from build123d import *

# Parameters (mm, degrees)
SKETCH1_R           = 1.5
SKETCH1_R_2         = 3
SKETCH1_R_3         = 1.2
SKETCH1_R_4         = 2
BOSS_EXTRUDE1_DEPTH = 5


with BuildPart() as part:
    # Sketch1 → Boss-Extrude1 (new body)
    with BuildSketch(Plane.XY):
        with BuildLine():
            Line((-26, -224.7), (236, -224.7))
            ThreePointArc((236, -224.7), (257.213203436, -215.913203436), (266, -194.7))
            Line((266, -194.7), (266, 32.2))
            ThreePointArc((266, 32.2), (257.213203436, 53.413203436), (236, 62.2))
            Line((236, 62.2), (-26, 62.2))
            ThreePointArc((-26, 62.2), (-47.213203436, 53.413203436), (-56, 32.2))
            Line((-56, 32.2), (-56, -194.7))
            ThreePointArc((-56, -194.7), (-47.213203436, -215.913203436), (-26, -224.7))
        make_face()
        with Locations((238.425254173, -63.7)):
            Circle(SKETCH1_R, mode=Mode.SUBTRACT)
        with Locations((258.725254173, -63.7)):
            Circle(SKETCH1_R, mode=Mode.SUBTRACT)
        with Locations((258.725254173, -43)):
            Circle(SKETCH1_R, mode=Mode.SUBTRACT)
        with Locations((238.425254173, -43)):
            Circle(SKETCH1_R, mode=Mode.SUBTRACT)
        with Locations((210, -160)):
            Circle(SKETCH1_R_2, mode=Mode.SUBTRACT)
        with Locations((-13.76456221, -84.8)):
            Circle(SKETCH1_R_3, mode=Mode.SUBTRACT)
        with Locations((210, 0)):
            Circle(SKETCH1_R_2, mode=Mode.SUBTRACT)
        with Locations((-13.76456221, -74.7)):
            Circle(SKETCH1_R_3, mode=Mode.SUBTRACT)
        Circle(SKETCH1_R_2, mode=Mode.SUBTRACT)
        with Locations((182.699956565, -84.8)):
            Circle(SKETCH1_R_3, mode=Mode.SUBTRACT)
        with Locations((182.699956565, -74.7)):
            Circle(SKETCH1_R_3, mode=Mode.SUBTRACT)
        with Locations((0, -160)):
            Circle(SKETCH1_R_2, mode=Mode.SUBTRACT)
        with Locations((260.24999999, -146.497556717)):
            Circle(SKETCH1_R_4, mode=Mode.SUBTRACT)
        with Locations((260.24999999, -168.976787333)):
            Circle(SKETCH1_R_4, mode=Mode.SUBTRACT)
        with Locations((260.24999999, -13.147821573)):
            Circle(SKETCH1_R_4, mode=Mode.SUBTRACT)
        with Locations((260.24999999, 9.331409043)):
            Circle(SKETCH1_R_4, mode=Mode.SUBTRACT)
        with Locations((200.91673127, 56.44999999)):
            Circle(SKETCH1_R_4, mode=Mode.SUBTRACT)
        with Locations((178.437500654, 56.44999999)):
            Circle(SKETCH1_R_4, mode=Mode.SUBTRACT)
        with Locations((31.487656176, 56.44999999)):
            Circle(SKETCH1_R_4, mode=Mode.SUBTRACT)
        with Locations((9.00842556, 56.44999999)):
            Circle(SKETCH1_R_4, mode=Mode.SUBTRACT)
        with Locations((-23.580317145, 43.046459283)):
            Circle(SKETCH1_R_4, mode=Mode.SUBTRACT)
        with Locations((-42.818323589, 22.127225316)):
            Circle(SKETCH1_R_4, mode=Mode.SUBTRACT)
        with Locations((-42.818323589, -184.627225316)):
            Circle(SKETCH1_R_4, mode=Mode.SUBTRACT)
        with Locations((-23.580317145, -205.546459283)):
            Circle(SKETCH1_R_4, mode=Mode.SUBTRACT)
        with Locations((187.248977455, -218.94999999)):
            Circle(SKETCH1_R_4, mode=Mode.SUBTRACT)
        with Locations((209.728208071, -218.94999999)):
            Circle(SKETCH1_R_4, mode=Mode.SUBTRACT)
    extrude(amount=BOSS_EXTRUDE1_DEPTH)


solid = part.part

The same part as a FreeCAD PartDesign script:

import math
import FreeCAD as App
import Part
import Sketcher
Q = App.Units.Quantity

doc = App.newDocument("Part")
body = doc.addObject("PartDesign::Body", "Body")

# Sketch on XY plane
sketch1 = body.newObject("Sketcher::SketchObject", "Sketch")
sketch1.AttachmentSupport = (doc.getObject("XY_Plane"), [""])
sketch1.MapMode = "FlatFace"
sketch1.addGeometry(Part.LineSegment(App.Vector(-26, -224.7, 0), App.Vector(236, -224.7, 0)), False)
sketch1.addGeometry(Part.ArcOfCircle(Part.Circle(App.Vector(236, -194.7, 0), App.Vector(0, 0, 1), 30), math.radians(-90), math.radians(0)), False)
sketch1.addGeometry(Part.LineSegment(App.Vector(266, -194.7, 0), App.Vector(266, 32.2, 0)), False)
sketch1.addGeometry(Part.ArcOfCircle(Part.Circle(App.Vector(236, 32.2, 0), App.Vector(0, 0, 1), 30), math.radians(0), math.radians(90)), False)
sketch1.addGeometry(Part.LineSegment(App.Vector(236, 62.2, 0), App.Vector(-26, 62.2, 0)), False)
sketch1.addGeometry(Part.ArcOfCircle(Part.Circle(App.Vector(-26, 32.2, 0), App.Vector(0, 0, 1), 30), math.radians(90), math.radians(180)), False)
sketch1.addGeometry(Part.LineSegment(App.Vector(-56, 32.2, 0), App.Vector(-56, -194.7, 0)), False)
sketch1.addGeometry(Part.ArcOfCircle(Part.Circle(App.Vector(-26, -194.7, 0), App.Vector(0, 0, 1), 30), math.radians(180), math.radians(270)), False)
sketch1.addGeometry(Part.Circle(App.Vector(-23.580317, -205.546459, 0), App.Vector(0, 0, 1), 2), False)
sketch1.addGeometry(Part.Circle(App.Vector(-42.818324, -184.627225, 0), App.Vector(0, 0, 1), 2), False)
sketch1.addGeometry(Part.Circle(App.Vector(0, -160, 0), App.Vector(0, 0, 1), 3), False)
sketch1.addGeometry(Part.Circle(App.Vector(-13.764562, -84.8, 0), App.Vector(0, 0, 1), 1.2), False)
sketch1.addGeometry(Part.Circle(App.Vector(187.248977, -218.95, 0), App.Vector(0, 0, 1), 2), False)
sketch1.addGeometry(Part.Circle(App.Vector(209.728208, -218.95, 0), App.Vector(0, 0, 1), 2), False)
sketch1.addGeometry(Part.Circle(App.Vector(210, -160, 0), App.Vector(0, 0, 1), 3), False)
sketch1.addGeometry(Part.Circle(App.Vector(260.25, -168.976787, 0), App.Vector(0, 0, 1), 2), False)
sketch1.addGeometry(Part.Circle(App.Vector(182.699957, -84.8, 0), App.Vector(0, 0, 1), 1.2), False)
sketch1.addGeometry(Part.Circle(App.Vector(260.25, -146.497557, 0), App.Vector(0, 0, 1), 2), False)
sketch1.addGeometry(Part.Circle(App.Vector(-13.764562, -74.7, 0), App.Vector(0, 0, 1), 1.2), False)
sketch1.addGeometry(Part.Circle(App.Vector(-42.818324, 22.127225, 0), App.Vector(0, 0, 1), 2), False)
sketch1.addGeometry(Part.Circle(App.Vector(0, 0, 0), App.Vector(0, 0, 1), 3), False)
sketch1.addGeometry(Part.Circle(App.Vector(-23.580317, 43.046459, 0), App.Vector(0, 0, 1), 2), False)
sketch1.addGeometry(Part.Circle(App.Vector(9.008426, 56.45, 0), App.Vector(0, 0, 1), 2), False)
sketch1.addGeometry(Part.Circle(App.Vector(31.487656, 56.45, 0), App.Vector(0, 0, 1), 2), False)
sketch1.addGeometry(Part.Circle(App.Vector(182.699957, -74.7, 0), App.Vector(0, 0, 1), 1.2), False)
sketch1.addGeometry(Part.Circle(App.Vector(238.425254, -63.7, 0), App.Vector(0, 0, 1), 1.5), False)
sketch1.addGeometry(Part.Circle(App.Vector(258.725254, -63.7, 0), App.Vector(0, 0, 1), 1.5), False)
sketch1.addGeometry(Part.Circle(App.Vector(238.425254, -43, 0), App.Vector(0, 0, 1), 1.5), False)
sketch1.addGeometry(Part.Circle(App.Vector(258.725254, -43, 0), App.Vector(0, 0, 1), 1.5), False)
sketch1.addGeometry(Part.Circle(App.Vector(260.25, -13.147822, 0), App.Vector(0, 0, 1), 2), False)
sketch1.addGeometry(Part.Circle(App.Vector(178.437501, 56.45, 0), App.Vector(0, 0, 1), 2), False)
sketch1.addGeometry(Part.Circle(App.Vector(210, 0, 0), App.Vector(0, 0, 1), 3), False)
sketch1.addGeometry(Part.Circle(App.Vector(260.25, 9.331409, 0), App.Vector(0, 0, 1), 2), False)
sketch1.addGeometry(Part.Circle(App.Vector(200.916731, 56.45, 0), App.Vector(0, 0, 1), 2), False)
sketch1.addConstraint(Sketcher.Constraint("Tangent", 0, 2, 1, 1))
sketch1.addConstraint(Sketcher.Constraint("Tangent", 1, 2, 2, 1))
sketch1.addConstraint(Sketcher.Constraint("Tangent", 2, 2, 3, 1))
sketch1.addConstraint(Sketcher.Constraint("Tangent", 3, 2, 4, 1))
sketch1.addConstraint(Sketcher.Constraint("Tangent", 4, 2, 5, 1))
sketch1.addConstraint(Sketcher.Constraint("Tangent", 5, 2, 6, 1))
sketch1.addConstraint(Sketcher.Constraint("Tangent", 6, 2, 7, 1))
sketch1.addConstraint(Sketcher.Constraint("Tangent", 7, 2, 0, 1))
sketch1.addConstraint(Sketcher.Constraint("Horizontal", 0))
sketch1.addConstraint(Sketcher.Constraint("Vertical", 2))
sketch1.addConstraint(Sketcher.Constraint("Horizontal", 4))
sketch1.addConstraint(Sketcher.Constraint("Vertical", 6))
sketch1.addConstraint(Sketcher.Constraint("Coincident", 20, 3, -1, 1))
sketch1.addConstraint(Sketcher.Constraint("Equal", 1, 3))
sketch1.addConstraint(Sketcher.Constraint("Equal", 3, 5))
sketch1.addConstraint(Sketcher.Constraint("Equal", 5, 7))
sketch1.addConstraint(Sketcher.Constraint("Equal", 8, 9))
sketch1.addConstraint(Sketcher.Constraint("Equal", 9, 12))
sketch1.addConstraint(Sketcher.Constraint("Equal", 12, 13))
sketch1.addConstraint(Sketcher.Constraint("Equal", 10, 14))
sketch1.addConstraint(Sketcher.Constraint("Equal", 13, 15))
sketch1.addConstraint(Sketcher.Constraint("Equal", 11, 16))
sketch1.addConstraint(Sketcher.Constraint("Equal", 15, 17))
sketch1.addConstraint(Sketcher.Constraint("Equal", 16, 18))
sketch1.addConstraint(Sketcher.Constraint("Equal", 17, 19))
sketch1.addConstraint(Sketcher.Constraint("Equal", 14, 20))
sketch1.addConstraint(Sketcher.Constraint("Equal", 19, 21))
sketch1.addConstraint(Sketcher.Constraint("Equal", 21, 22))
sketch1.addConstraint(Sketcher.Constraint("Equal", 22, 23))
sketch1.addConstraint(Sketcher.Constraint("Equal", 18, 24))
sketch1.addConstraint(Sketcher.Constraint("Equal", 25, 26))
sketch1.addConstraint(Sketcher.Constraint("Equal", 26, 27))
sketch1.addConstraint(Sketcher.Constraint("Equal", 27, 28))
sketch1.addConstraint(Sketcher.Constraint("Equal", 23, 29))
sketch1.addConstraint(Sketcher.Constraint("Equal", 29, 30))
sketch1.addConstraint(Sketcher.Constraint("Equal", 20, 31))
sketch1.addConstraint(Sketcher.Constraint("Equal", 30, 32))
sketch1.addConstraint(Sketcher.Constraint("Equal", 32, 33))
sketch1.addConstraint(Sketcher.Constraint("PointOnObject", 10, 3, -2))
sketch1.addConstraint(Sketcher.Constraint("PointOnObject", 31, 3, -1))
sketch1.addConstraint(Sketcher.Constraint("Horizontal", 12, 3, 13, 3))
sketch1.addConstraint(Sketcher.Constraint("Horizontal", 10, 3, 14, 3))
sketch1.addConstraint(Sketcher.Constraint("Horizontal", 11, 3, 16, 3))
sketch1.addConstraint(Sketcher.Constraint("Horizontal", 22, 3, 23, 3))
sketch1.addConstraint(Sketcher.Constraint("Horizontal", 18, 3, 24, 3))
sketch1.addConstraint(Sketcher.Constraint("Horizontal", 25, 3, 26, 3))
sketch1.addConstraint(Sketcher.Constraint("Horizontal", 27, 3, 28, 3))
sketch1.addConstraint(Sketcher.Constraint("Horizontal", 23, 3, 30, 3))
sketch1.addConstraint(Sketcher.Constraint("Horizontal", 30, 3, 33, 3))
sketch1.addConstraint(Sketcher.Constraint("Vertical", 15, 3, 17, 3))
sketch1.addConstraint(Sketcher.Constraint("Vertical", 11, 3, 18, 3))
sketch1.addConstraint(Sketcher.Constraint("Vertical", 9, 3, 19, 3))
sketch1.addConstraint(Sketcher.Constraint("Vertical", 8, 3, 21, 3))
sketch1.addConstraint(Sketcher.Constraint("Vertical", 16, 3, 24, 3))
sketch1.addConstraint(Sketcher.Constraint("Vertical", 25, 3, 27, 3))
sketch1.addConstraint(Sketcher.Constraint("Vertical", 26, 3, 28, 3))
sketch1.addConstraint(Sketcher.Constraint("Vertical", 17, 3, 29, 3))
sketch1.addConstraint(Sketcher.Constraint("Vertical", 14, 3, 31, 3))
sketch1.addConstraint(Sketcher.Constraint("Vertical", 29, 3, 32, 3))
sketch1.addConstraint(Sketcher.Constraint("Diameter", 8, Q("4 mm")))
sketch1.addConstraint(Sketcher.Constraint("Diameter", 10, Q("6 mm")))
sketch1.addConstraint(Sketcher.Constraint("Diameter", 25, Q("3 mm")))
sketch1.addConstraint(Sketcher.Constraint("Radius", 1, Q("30 mm")))
sketch1.addConstraint(Sketcher.Constraint("Diameter", 11, Q("2.4 mm")))
sketch1.addConstraint(Sketcher.Constraint("DistanceX", 0, 1, 0, 2, Q("262 mm")))
sketch1.addConstraint(Sketcher.Constraint("DistanceY", 2, 1, 2, 2, Q("226.9 mm")))
sketch1.addConstraint(Sketcher.Constraint("DistanceX", -1, 1, 1, 3, Q("236 mm")))
sketch1.addConstraint(Sketcher.Constraint("DistanceY", 10, 3, -1, 1, Q("160 mm")))
sketch1.addConstraint(Sketcher.Constraint("DistanceX", -1, 1, 14, 3, Q("210 mm")))
sketch1.addConstraint(Sketcher.Constraint("DistanceY", 27, 3, -1, 1, Q("43 mm")))
sketch1.addConstraint(Sketcher.Constraint("DistanceY", 11, 3, 5, 3, Q("117 mm")))
sketch1.addConstraint(Sketcher.Constraint("DistanceY", 7, 3, 18, 3, Q("120 mm")))
sketch1.addConstraint(Sketcher.Constraint("DistanceY", 24, 3, 25, 3, Q("11 mm")))
sketch1.addConstraint(Sketcher.Constraint("DistanceY", 1, 3, -1, 1, Q("194.7 mm")))
sketch1.addConstraint(Sketcher.Constraint("DistanceX", 25, 3, 26, 3, Q("20.3 mm")))
sketch1.addConstraint(Sketcher.Constraint("DistanceY", 12, 3, -1, 1, Q("218.95 mm")))
sketch1.addConstraint(Sketcher.Constraint("DistanceX", -1, 1, 15, 3, Q("260.25 mm")))
sketch1.addConstraint(Sketcher.Constraint("DistanceY", -1, 1, 22, 3, Q("56.45 mm")))
sketch1.addConstraint(Sketcher.Constraint("DistanceX", -1, 1, 30, 3, Q("178.437501 mm")))
sketch1.addConstraint(Sketcher.Constraint("DistanceX", 9, 3, 12, 3, Q("230.067301 mm")))
sketch1.addConstraint(Sketcher.Constraint("DistanceY", 8, 3, -1, 1, Q("205.546459 mm")))
sketch1.addConstraint(Sketcher.Constraint("DistanceX", -1, 1, 13, 3, Q("209.728208 mm")))
sketch1.addConstraint(Sketcher.Constraint("DistanceY", -1, 1, 21, 3, Q("43.046459 mm")))
sketch1.addConstraint(Sketcher.Constraint("DistanceY", 29, 3, -1, 1, Q("13.147822 mm")))
sketch1.addConstraint(Sketcher.Constraint("DistanceY", -1, 1, 32, 3, Q("9.331409 mm")))
sketch1.addConstraint(Sketcher.Constraint("DistanceX", -1, 1, 33, 3, Q("200.916731 mm")))
sketch1.addConstraint(Sketcher.Constraint("DistanceX", 9, 3, 11, 3, Q("29.053761 mm")))
sketch1.addConstraint(Sketcher.Constraint("DistanceX", 12, 3, 13, 3, Q("22.479231 mm")))
sketch1.addConstraint(Sketcher.Constraint("DistanceX", 16, 3, 12, 3, Q("4.549021 mm")))
sketch1.addConstraint(Sketcher.Constraint("DistanceY", 15, 3, 17, 3, Q("22.479231 mm")))
sketch1.addConstraint(Sketcher.Constraint("DistanceY", 9, 3, 19, 3, Q("206.754451 mm")))
sketch1.addConstraint(Sketcher.Constraint("DistanceX", 19, 3, 22, 3, Q("51.826749 mm")))
sketch1.addConstraint(Sketcher.Constraint("DistanceX", 22, 3, 23, 3, Q("22.479231 mm")))
sketch1.addConstraint(Sketcher.Constraint("DistanceX", 8, 3, -1, 1, Q("23.580317 mm")))
sketch1.addConstraint(Sketcher.Constraint("DistanceY", 9, 3, -1, 1, Q("184.627225 mm")))
sketch1.addConstraint(Sketcher.Constraint("DistanceY", 15, 3, -1, 1, Q("168.976787 mm")))
sketch1.addConstraint(Sketcher.Constraint("DistanceX", -1, 1, 25, 3, Q("238.425254 mm")))
pad1 = body.newObject("PartDesign::Pad", "Pad")
pad1.Profile = sketch1
pad1.Length = 5

doc.recompute()
